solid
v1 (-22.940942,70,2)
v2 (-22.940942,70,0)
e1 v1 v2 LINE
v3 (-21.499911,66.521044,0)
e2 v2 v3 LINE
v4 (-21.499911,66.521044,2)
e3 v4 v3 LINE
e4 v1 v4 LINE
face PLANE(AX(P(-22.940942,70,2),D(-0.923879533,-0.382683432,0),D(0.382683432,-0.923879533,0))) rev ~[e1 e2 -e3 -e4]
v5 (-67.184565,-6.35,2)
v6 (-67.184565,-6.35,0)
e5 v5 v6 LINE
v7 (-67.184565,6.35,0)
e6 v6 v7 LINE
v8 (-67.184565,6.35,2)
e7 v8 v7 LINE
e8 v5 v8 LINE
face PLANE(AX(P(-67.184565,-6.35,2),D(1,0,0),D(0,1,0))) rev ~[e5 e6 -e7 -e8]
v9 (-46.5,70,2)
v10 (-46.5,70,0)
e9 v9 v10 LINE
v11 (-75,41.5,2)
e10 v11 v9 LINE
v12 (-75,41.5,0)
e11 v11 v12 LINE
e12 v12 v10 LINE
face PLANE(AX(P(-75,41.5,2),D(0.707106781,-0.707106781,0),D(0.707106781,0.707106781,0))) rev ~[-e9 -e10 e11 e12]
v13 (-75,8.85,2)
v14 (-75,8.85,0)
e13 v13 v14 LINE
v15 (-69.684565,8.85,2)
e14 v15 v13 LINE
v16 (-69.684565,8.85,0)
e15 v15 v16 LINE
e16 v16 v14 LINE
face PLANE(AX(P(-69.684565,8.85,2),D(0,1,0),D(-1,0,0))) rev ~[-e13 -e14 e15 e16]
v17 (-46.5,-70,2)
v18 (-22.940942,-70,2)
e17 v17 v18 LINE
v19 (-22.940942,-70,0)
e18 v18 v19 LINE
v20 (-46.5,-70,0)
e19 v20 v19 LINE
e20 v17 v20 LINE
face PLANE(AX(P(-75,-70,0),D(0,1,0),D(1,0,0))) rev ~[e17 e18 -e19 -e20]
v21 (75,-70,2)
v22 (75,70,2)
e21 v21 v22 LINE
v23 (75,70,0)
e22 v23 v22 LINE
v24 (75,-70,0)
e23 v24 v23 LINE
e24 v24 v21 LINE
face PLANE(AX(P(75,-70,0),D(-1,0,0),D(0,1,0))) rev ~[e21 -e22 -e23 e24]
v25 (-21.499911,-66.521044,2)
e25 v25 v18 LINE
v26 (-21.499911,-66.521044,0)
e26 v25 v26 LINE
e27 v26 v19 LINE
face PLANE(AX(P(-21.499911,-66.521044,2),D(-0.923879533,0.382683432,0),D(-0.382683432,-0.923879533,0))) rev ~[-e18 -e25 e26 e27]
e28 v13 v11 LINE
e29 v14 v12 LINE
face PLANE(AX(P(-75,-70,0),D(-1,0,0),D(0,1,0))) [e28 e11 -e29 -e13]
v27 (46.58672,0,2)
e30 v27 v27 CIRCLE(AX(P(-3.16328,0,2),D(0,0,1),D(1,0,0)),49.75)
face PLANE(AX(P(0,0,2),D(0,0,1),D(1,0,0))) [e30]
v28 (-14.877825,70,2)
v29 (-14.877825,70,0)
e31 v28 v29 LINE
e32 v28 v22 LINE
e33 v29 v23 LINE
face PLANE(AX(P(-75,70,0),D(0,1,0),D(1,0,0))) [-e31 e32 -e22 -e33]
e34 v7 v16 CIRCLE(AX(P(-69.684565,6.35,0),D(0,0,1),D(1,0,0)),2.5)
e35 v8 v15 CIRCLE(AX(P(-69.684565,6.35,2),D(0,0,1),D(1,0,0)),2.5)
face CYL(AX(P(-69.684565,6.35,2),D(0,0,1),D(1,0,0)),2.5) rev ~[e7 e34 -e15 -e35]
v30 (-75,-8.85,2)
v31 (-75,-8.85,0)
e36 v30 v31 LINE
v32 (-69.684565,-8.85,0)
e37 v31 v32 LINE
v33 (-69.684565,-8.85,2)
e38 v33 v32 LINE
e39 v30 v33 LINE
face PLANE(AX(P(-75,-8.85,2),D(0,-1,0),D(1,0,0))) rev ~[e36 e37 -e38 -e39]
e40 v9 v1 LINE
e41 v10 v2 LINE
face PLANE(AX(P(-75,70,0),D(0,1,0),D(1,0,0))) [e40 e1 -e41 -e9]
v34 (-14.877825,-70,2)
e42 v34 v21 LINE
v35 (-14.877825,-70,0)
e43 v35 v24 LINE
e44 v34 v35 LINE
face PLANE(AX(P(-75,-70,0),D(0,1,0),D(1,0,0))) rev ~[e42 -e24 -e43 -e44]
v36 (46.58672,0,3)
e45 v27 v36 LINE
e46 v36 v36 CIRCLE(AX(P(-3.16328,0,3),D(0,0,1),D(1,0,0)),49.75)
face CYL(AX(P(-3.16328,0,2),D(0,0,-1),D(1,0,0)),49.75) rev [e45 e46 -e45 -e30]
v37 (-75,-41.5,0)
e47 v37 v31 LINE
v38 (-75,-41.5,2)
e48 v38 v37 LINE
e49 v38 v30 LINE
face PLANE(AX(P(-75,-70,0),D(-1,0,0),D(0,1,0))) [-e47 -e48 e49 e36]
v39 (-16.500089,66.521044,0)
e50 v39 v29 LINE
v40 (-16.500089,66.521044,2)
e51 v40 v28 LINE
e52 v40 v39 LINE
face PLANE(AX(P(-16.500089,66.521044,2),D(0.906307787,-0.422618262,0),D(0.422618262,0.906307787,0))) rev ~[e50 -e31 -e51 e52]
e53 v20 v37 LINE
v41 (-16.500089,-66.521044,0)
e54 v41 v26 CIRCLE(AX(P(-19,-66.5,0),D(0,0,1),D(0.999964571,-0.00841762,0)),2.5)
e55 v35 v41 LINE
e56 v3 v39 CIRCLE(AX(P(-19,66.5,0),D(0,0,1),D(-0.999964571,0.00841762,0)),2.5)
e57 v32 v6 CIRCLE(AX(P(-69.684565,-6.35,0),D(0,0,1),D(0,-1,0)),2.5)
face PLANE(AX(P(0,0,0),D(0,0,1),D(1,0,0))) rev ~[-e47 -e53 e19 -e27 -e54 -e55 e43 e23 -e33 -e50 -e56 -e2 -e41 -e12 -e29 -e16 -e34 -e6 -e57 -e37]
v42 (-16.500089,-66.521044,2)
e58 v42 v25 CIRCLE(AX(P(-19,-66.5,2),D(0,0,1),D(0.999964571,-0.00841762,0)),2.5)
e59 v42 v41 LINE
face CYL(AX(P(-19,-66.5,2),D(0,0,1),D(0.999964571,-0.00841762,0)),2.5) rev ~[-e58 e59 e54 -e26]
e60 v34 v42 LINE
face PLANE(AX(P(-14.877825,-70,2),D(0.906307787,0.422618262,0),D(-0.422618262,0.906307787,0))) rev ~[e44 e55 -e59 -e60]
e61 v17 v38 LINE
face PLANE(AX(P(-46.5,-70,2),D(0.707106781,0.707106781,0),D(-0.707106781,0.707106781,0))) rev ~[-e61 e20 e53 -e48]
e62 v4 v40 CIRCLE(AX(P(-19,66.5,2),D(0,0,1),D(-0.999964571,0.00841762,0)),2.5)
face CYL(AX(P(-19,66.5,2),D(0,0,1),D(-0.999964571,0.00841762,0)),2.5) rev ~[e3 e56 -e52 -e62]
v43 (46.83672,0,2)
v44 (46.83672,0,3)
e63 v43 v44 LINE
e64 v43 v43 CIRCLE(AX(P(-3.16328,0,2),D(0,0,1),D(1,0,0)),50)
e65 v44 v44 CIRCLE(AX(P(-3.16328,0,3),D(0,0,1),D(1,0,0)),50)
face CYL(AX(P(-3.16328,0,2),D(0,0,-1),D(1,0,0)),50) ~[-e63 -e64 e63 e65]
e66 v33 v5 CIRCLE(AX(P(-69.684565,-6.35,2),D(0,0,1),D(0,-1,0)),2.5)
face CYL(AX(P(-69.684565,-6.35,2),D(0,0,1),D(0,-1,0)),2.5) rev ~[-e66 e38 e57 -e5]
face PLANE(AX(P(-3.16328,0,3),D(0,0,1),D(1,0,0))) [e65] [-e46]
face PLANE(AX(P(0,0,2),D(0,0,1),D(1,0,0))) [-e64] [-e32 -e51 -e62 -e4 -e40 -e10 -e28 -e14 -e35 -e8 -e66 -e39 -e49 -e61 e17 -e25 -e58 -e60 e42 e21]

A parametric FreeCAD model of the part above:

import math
import FreeCAD as App
import Part
import Sketcher
Q = App.Units.Quantity


def add_polygon(sketch, points):
    """Adds a closed chain of lines whose ends are joined by coincident constraints."""
    first, n = sketch.GeometryCount, len(points)
    for a, b in zip(points, points[1:] + points[:1]):
        sketch.addGeometry(Part.LineSegment(App.Vector(*a, 0), App.Vector(*b, 0)), False)
    for i in range(n):
        sketch.addConstraint(Sketcher.Constraint("Coincident", first + i, 2, first + (i + 1) % n, 1))

doc = App.newDocument("Part")
body = doc.addObject("PartDesign::Body", "Body")

# Sketch on XY plane
sketch1 = doc.addObject("Sketcher::SketchObject", "Sketch")
body.addObject(sketch1)
sketch1.AttachmentSupport = (doc.XY_Plane, [""])
sketch1.MapMode = "FlatFace"
add_polygon(sketch1, [(-75, 70), (-75, -70), (75, -70), (75, 70)])  # lines 0-3
sketch1.addConstraint([
    Sketcher.Constraint("Vertical", 0),
    Sketcher.Constraint("Horizontal", 1),
    Sketcher.Constraint("Vertical", 2),
    Sketcher.Constraint("Horizontal", 3),
    Sketcher.Constraint("Symmetric", 0, 2, 2, 2, -1, 1),
    Sketcher.Constraint("DistanceX", 1, 1, 1, 2, 150.0),
    Sketcher.Constraint("DistanceY", 0, 2, 0, 1, 140.0),
])
pad1 = doc.addObject("PartDesign::Pad", "Pad")
body.addObject(pad1)
pad1.Profile = sketch1
pad1.Length = 2

# Sketch on XY plane
sketch2 = doc.addObject("Sketcher::SketchObject", "Sketch001")
body.addObject(sketch2)
sketch2.AttachmentSupport = (doc.XY_Plane, [""])
sketch2.MapMode = "FlatFace"
sketch2.AttachmentOffset = App.Placement(App.Vector(0, 0, 2), App.Rotation())
add_polygon(sketch2, [(-75, 70), (-75, 41.5), (-46.5, 70)])  # lines 0-2
add_polygon(sketch2, [(-46.5, -70), (-75, -41.5), (-75, -70)])  # lines 3-5
sketch2.addGeometry(Part.LineSegment(App.Vector(-67.184565, -6.35, 0), App.Vector(-67.184565, 6.35, 0)), False)  # 6
sketch2.addGeometry(Part.ArcOfCircle(Part.Circle(App.Vector(-69.684565, 6.35, 0), App.Vector(0, 0, 1), 2.5), math.radians(0), math.radians(90)), False)  # 7
sketch2.addGeometry(Part.LineSegment(App.Vector(-69.684565, 8.85, 0), App.Vector(-75, 8.85, 0)), False)  # 8
sketch2.addGeometry(Part.LineSegment(App.Vector(-75, 8.85, 0), App.Vector(-75, -8.85, 0)), False)  # 9
sketch2.addGeometry(Part.LineSegment(App.Vector(-75, -8.85, 0), App.Vector(-69.684565, -8.85, 0)), False)  # 10
sketch2.addGeometry(Part.ArcOfCircle(Part.Circle(App.Vector(-69.684565, -6.35, 0), App.Vector(0, 0, 1), 2.5), math.radians(-90), math.radians(0)), False)  # 11
sketch2.addGeometry(Part.LineSegment(App.Vector(-21.499911, -66.521044, 0), App.Vector(-22.940942, -70, 0)), False)  # 12
sketch2.addGeometry(Part.LineSegment(App.Vector(-22.940942, -70, 0), App.Vector(-14.877825, -70, 0)), False)  # 13
sketch2.addGeometry(Part.LineSegment(App.Vector(-14.877825, -70, 0), App.Vector(-16.500089, -66.521044, 0)), False)  # 14
sketch2.addGeometry(Part.ArcOfCircle(Part.Circle(App.Vector(-19, -66.5, 0), App.Vector(0, 0, 1), 2.5), math.radians(-0.4823), math.radians(180.4823)), False)  # 15
sketch2.addGeometry(Part.LineSegment(App.Vector(-14.877825, 70, 0), App.Vector(-22.940942, 70, 0)), False)  # 16
sketch2.addGeometry(Part.LineSegment(App.Vector(-22.940942, 70, 0), App.Vector(-21.499911, 66.521044, 0)), False)  # 17
sketch2.addGeometry(Part.ArcOfCircle(Part.Circle(App.Vector(-19, 66.5, 0), App.Vector(0, 0, 1), 2.5), math.radians(179.5177), math.radians(360.4823)), False)  # 18
sketch2.addGeometry(Part.LineSegment(App.Vector(-16.500089, 66.521044, 0), App.Vector(-14.877825, 70, 0)), False)  # 19
sketch2.addConstraint([
    Sketcher.Constraint("Tangent", 6, 2, 7, 1),
    Sketcher.Constraint("Tangent", 7, 2, 8, 1),
    Sketcher.Constraint("Coincident", 8, 2, 9, 1),
    Sketcher.Constraint("Coincident", 9, 2, 10, 1),
    Sketcher.Constraint("Tangent", 10, 2, 11, 1),
    Sketcher.Constraint("Tangent", 11, 2, 6, 1),
    Sketcher.Constraint("Coincident", 12, 2, 13, 1),
    Sketcher.Constraint("Coincident", 13, 2, 14, 1),
    Sketcher.Constraint("Coincident", 14, 2, 15, 1),
    Sketcher.Constraint("Coincident", 15, 2, 12, 1),
    Sketcher.Constraint("Coincident", 16, 2, 17, 1),
    Sketcher.Constraint("Coincident", 17, 2, 18, 1),
    Sketcher.Constraint("Coincident", 18, 2, 19, 1),
    Sketcher.Constraint("Coincident", 19, 2, 16, 1),
    Sketcher.Constraint("Vertical", 0),
    Sketcher.Constraint("Horizontal", 2),
    Sketcher.Constraint("Vertical", 4),
    Sketcher.Constraint("Horizontal", 5),
    Sketcher.Constraint("Vertical", 6),
    Sketcher.Constraint("Horizontal", 8),
    Sketcher.Constraint("Vertical", 9),
    Sketcher.Constraint("Horizontal", 10),
    Sketcher.Constraint("Horizontal", 13),
    Sketcher.Constraint("Horizontal", 16),
    Sketcher.Constraint("Equal", 7, 11),
    Sketcher.Constraint("Equal", 11, 15),
    Sketcher.Constraint("Equal", 15, 18),
    Sketcher.Constraint("Symmetric", 15, 3, 18, 3, -1),
    Sketcher.Constraint("Symmetric", 0, 2, 3, 2, -1),
    Sketcher.Constraint("Symmetric", 1, 2, 5, 2, -1),
    Sketcher.Constraint("Symmetric", 12, 2, 16, 2, -1),
    Sketcher.Constraint("Perpendicular", 1, 3),
    Sketcher.Constraint("Horizontal", 5, 2, 12, 2),
    Sketcher.Constraint("Horizontal", 14, 2, 15, 2),
    Sketcher.Constraint("Horizontal", 17, 2, 18, 2),
    Sketcher.Constraint("Vertical", 4, 2, 8, 2),
    Sketcher.Constraint("Vertical", 15, 2, 17, 2),
    Sketcher.Constraint("Vertical", 13, 2, 19, 2),
    Sketcher.Constraint("Radius", 7, 2.5),
    Sketcher.Constraint("Angle", 14, Q("115 deg")),
    Sketcher.Constraint("DistanceX", 2, 2, 2, 1, 28.5),
    Sketcher.Constraint("DistanceY", 6, 1, 6, 2, 12.7),
    Sketcher.Constraint("DistanceX", 15, 3, -1, 1, 19.0),
    Sketcher.Constraint("DistanceX", 0, 2, -1, 1, 75.0),
    Sketcher.Constraint("DistanceY", -1, 1, 1, 2, 70.0),
    Sketcher.Constraint("Angle", 12, Q("-112.5 deg")),
    Sketcher.Constraint("DistanceY", 15, 3, 18, 3, 133.0),
    Sketcher.Constraint("DistanceY", -1, 1, 7, 3, 6.35),
    Sketcher.Constraint("DistanceX", 8, 2, 8, 1, 5.315435),
    Sketcher.Constraint("DistanceX", 13, 1, 13, 2, 8.063117),
])
pocket1 = doc.addObject("PartDesign::Pocket", "Pocket")
body.addObject(pocket1)
pocket1.Profile = sketch2
pocket1.Length = 5

# Sketch on XY plane
sketch3 = doc.addObject("Sketcher::SketchObject", "Sketch002")
body.addObject(sketch3)
sketch3.AttachmentSupport = (doc.XY_Plane, [""])
sketch3.MapMode = "FlatFace"
sketch3.AttachmentOffset = App.Placement(App.Vector(0, 0, 2), App.Rotation())
sketch3.addGeometry([
    Part.Circle(App.Vector(-3, 0, 0), App.Vector(0, 0, 1), 50),
    Part.Circle(App.Vector(-3, 0, 0), App.Vector(0, 0, 1), 50),
], False)
sketch3.addConstraint([
    Sketcher.Constraint("Coincident", 1, 3, 0, 3),
    Sketcher.Constraint("PointOnObject", 0, 3, -1),
    Sketcher.Constraint("Diameter", 0, 100.0),
    Sketcher.Constraint("Diameter", 1, 99.5),
    Sketcher.Constraint("DistanceX", 0, 3, -1, 1, 3.16328),
])
pad2 = doc.addObject("PartDesign::Pad", "Pad001")
body.addObject(pad2)
pad2.Profile = sketch3
pad2.Length = 1

doc.recompute()
